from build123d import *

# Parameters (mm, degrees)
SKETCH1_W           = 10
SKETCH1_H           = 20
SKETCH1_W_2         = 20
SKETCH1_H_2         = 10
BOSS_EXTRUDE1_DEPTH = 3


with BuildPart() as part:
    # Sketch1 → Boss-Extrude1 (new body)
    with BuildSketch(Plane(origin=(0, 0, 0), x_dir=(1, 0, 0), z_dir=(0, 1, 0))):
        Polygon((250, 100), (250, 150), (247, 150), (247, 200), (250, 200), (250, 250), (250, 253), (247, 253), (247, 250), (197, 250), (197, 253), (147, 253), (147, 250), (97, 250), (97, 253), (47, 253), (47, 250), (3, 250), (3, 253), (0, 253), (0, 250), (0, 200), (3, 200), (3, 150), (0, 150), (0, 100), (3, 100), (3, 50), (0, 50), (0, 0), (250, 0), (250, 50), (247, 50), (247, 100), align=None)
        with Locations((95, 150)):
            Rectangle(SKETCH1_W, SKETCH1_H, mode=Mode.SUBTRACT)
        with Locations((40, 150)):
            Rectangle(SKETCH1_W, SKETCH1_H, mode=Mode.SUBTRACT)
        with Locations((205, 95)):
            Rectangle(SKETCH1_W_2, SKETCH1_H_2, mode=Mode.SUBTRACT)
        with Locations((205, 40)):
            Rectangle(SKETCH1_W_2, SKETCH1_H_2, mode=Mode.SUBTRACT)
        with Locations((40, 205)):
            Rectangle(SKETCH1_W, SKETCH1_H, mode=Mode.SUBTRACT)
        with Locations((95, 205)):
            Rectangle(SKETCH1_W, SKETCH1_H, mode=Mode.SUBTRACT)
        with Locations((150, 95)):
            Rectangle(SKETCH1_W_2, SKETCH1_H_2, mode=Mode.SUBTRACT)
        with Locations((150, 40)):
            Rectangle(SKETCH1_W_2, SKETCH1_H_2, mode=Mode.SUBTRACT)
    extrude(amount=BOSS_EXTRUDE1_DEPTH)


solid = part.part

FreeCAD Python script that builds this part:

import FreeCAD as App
import Part
import Sketcher

V = App.Vector
Q = App.Units.Quantity

doc = App.newDocument("Part")
params = doc.addObject("Spreadsheet::Sheet", "Params")
for row, (alias, value) in enumerate([
    ("sketch1_width", "3 mm"),
    ("sketch1_width2", "50 mm"),
    ("sketch1_width3", "44 mm"),
    ("sketch1_width4", "20 mm"),
    ("sketch1_width5", "10 mm"),
    ("pad1_length", "3 mm"),
], start=1):
    params.set(f"A{row}", alias)
    params.set(f"B{row}", "=" + value)
    params.setAlias(f"B{row}", alias)

body = doc.addObject("PartDesign::Body", "Body")

sketch1 = doc.addObject("Sketcher::SketchObject", "Sketch")
body.addObject(sketch1)
sketch1.AttachmentSupport = (doc.XZ_Plane, [""])
sketch1.MapMode = "FlatFace"
sketch1.addGeometry([
    Part.LineSegment(V(250, -100, 0), V(250, -150, 0)),
    Part.LineSegment(V(250, -150, 0), V(247, -150, 0)),
    Part.LineSegment(V(247, -150, 0), V(247, -200, 0)),
    Part.LineSegment(V(247, -200, 0), V(250, -200, 0)),
    Part.LineSegment(V(250, -200, 0), V(250, -253, 0)),
    Part.LineSegment(V(250, -253, 0), V(247, -253, 0)),
    Part.LineSegment(V(247, -253, 0), V(247, -250, 0)),
    Part.LineSegment(V(247, -250, 0), V(197, -250, 0)),
    Part.LineSegment(V(197, -250, 0), V(197, -253, 0)),
    Part.LineSegment(V(197, -253, 0), V(147, -253, 0)),
    Part.LineSegment(V(147, -253, 0), V(147, -250, 0)),
    Part.LineSegment(V(147, -250, 0), V(97, -250, 0)),
    Part.LineSegment(V(97, -250, 0), V(97, -253, 0)),
    Part.LineSegment(V(97, -253, 0), V(47, -253, 0)),
    Part.LineSegment(V(47, -253, 0), V(47, -250, 0)),
    Part.LineSegment(V(47, -250, 0), V(3, -250, 0)),
    Part.LineSegment(V(3, -250, 0), V(3, -253, 0)),
    Part.LineSegment(V(3, -253, 0), V(0, -253, 0)),
    Part.LineSegment(V(0, -253, 0), V(0, -200, 0)),
    Part.LineSegment(V(0, -200, 0), V(3, -200, 0)),
    Part.LineSegment(V(3, -200, 0), V(3, -150, 0)),
    Part.LineSegment(V(3, -150, 0), V(0, -150, 0)),
    Part.LineSegment(V(0, -150, 0), V(0, -100, 0)),
    Part.LineSegment(V(0, -100, 0), V(3, -100, 0)),
    Part.LineSegment(V(3, -100, 0), V(3, -50, 0)),
    Part.LineSegment(V(3, -50, 0), V(0, -50, 0)),
    Part.LineSegment(V(0, -50, 0), V(0, 0, 0)),
    Part.LineSegment(V(0, 0, 0), V(250, 0, 0)),
    Part.LineSegment(V(250, 0, 0), V(250, -50, 0)),
    Part.LineSegment(V(250, -50, 0), V(247, -50, 0)),
    Part.LineSegment(V(247, -50, 0), V(247, -100, 0)),
    Part.LineSegment(V(247, -100, 0), V(250, -100, 0)),
    Part.LineSegment(V(160, -35, 0), V(140, -35, 0)),
    Part.LineSegment(V(140, -35, 0), V(140, -45, 0)),
    Part.LineSegment(V(140, -45, 0), V(160, -45, 0)),
    Part.LineSegment(V(160, -45, 0), V(160, -35, 0)),
    Part.LineSegment(V(215, -35, 0), V(195, -35, 0)),
    Part.LineSegment(V(195, -35, 0), V(195, -45, 0)),
    Part.LineSegment(V(195, -45, 0), V(215, -45, 0)),
    Part.LineSegment(V(215, -45, 0), V(215, -35, 0)),
    Part.LineSegment(V(160, -90, 0), V(140, -90, 0)),
    Part.LineSegment(V(140, -90, 0), V(140, -100, 0)),
    Part.LineSegment(V(140, -100, 0), V(160, -100, 0)),
    Part.LineSegment(V(160, -100, 0), V(160, -90, 0)),
    Part.LineSegment(V(215, -90, 0), V(195, -90, 0)),
    Part.LineSegment(V(195, -90, 0), V(195, -100, 0)),
    Part.LineSegment(V(195, -100, 0), V(215, -100, 0)),
    Part.LineSegment(V(215, -100, 0), V(215, -90, 0)),
    Part.LineSegment(V(45, -140, 0), V(35, -140, 0)),
    Part.LineSegment(V(35, -140, 0), V(35, -160, 0)),
    Part.LineSegment(V(35, -160, 0), V(45, -160, 0)),
    Part.LineSegment(V(45, -160, 0), V(45, -140, 0)),
    Part.LineSegment(V(100, -140, 0), V(90, -140, 0)),
    Part.LineSegment(V(90, -140, 0), V(90, -160, 0)),
    Part.LineSegment(V(90, -160, 0), V(100, -160, 0)),
    Part.LineSegment(V(100, -160, 0), V(100, -140, 0)),
    Part.LineSegment(V(45, -195, 0), V(35, -195, 0)),
    Part.LineSegment(V(35, -195, 0), V(35, -215, 0)),
    Part.LineSegment(V(35, -215, 0), V(45, -215, 0)),
    Part.LineSegment(V(45, -215, 0), V(45, -195, 0)),
    Part.LineSegment(V(100, -195, 0), V(90, -195, 0)),
    Part.LineSegment(V(90, -195, 0), V(90, -215, 0)),
    Part.LineSegment(V(90, -215, 0), V(100, -215, 0)),
    Part.LineSegment(V(100, -215, 0), V(100, -195, 0)),
], False)
sketch1.addConstraint([
    Sketcher.Constraint("Coincident", 0, 2, 1, 1),
    Sketcher.Constraint("Coincident", 1, 2, 2, 1),
    Sketcher.Constraint("Coincident", 2, 2, 3, 1),
    Sketcher.Constraint("Coincident", 3, 2, 4, 1),
    Sketcher.Constraint("Coincident", 4, 2, 5, 1),
    Sketcher.Constraint("Coincident", 5, 2, 6, 1),
    Sketcher.Constraint("Coincident", 6, 2, 7, 1),
    Sketcher.Constraint("Coincident", 7, 2, 8, 1),
    Sketcher.Constraint("Coincident", 8, 2, 9, 1),
    Sketcher.Constraint("Coincident", 9, 2, 10, 1),
    Sketcher.Constraint("Coincident", 10, 2, 11, 1),
    Sketcher.Constraint("Coincident", 11, 2, 12, 1),
    Sketcher.Constraint("Coincident", 12, 2, 13, 1),
    Sketcher.Constraint("Coincident", 13, 2, 14, 1),
    Sketcher.Constraint("Coincident", 14, 2, 15, 1),
    Sketcher.Constraint("Coincident", 15, 2, 16, 1),
    Sketcher.Constraint("Coincident", 16, 2, 17, 1),
    Sketcher.Constraint("Coincident", 17, 2, 18, 1),
    Sketcher.Constraint("Coincident", 18, 2, 19, 1),
    Sketcher.Constraint("Coincident", 19, 2, 20, 1),
    Sketcher.Constraint("Coincident", 20, 2, 21, 1),
    Sketcher.Constraint("Coincident", 21, 2, 22, 1),
    Sketcher.Constraint("Coincident", 22, 2, 23, 1),
    Sketcher.Constraint("Coincident", 23, 2, 24, 1),
    Sketcher.Constraint("Coincident", 24, 2, 25, 1),
    Sketcher.Constraint("Coincident", 25, 2, 26, 1),
    Sketcher.Constraint("Coincident", 26, 2, 27, 1),
    Sketcher.Constraint("Coincident", 27, 2, 28, 1),
    Sketcher.Constraint("Coincident", 28, 2, 29, 1),
    Sketcher.Constraint("Coincident", 29, 2, 30, 1),
    Sketcher.Constraint("Coincident", 30, 2, 31, 1),
    Sketcher.Constraint("Coincident", 31, 2, 0, 1),
    Sketcher.Constraint("Coincident", 32, 2, 33, 1),
    Sketcher.Constraint("Coincident", 33, 2, 34, 1),
    Sketcher.Constraint("Coincident", 34, 2, 35, 1),
    Sketcher.Constraint("Coincident", 35, 2, 32, 1),
    Sketcher.Constraint("Coincident", 36, 2, 37, 1),
    Sketcher.Constraint("Coincident", 37, 2, 38, 1),
    Sketcher.Constraint("Coincident", 38, 2, 39, 1),
    Sketcher.Constraint("Coincident", 39, 2, 36, 1),
    Sketcher.Constraint("Coincident", 40, 2, 41, 1),
    Sketcher.Constraint("Coincident", 41, 2, 42, 1),
    Sketcher.Constraint("Coincident", 42, 2, 43, 1),
    Sketcher.Constraint("Coincident", 43, 2, 40, 1),
    Sketcher.Constraint("Coincident", 44, 2, 45, 1),
    Sketcher.Constraint("Coincident", 45, 2, 46, 1),
    Sketcher.Constraint("Coincident", 46, 2, 47, 1),
    Sketcher.Constraint("Coincident", 47, 2, 44, 1),
    Sketcher.Constraint("Coincident", 48, 2, 49, 1),
    Sketcher.Constraint("Coincident", 49, 2, 50, 1),
    Sketcher.Constraint("Coincident", 50, 2, 51, 1),
    Sketcher.Constraint("Coincident", 51, 2, 48, 1),
    Sketcher.Constraint("Coincident", 52, 2, 53, 1),
    Sketcher.Constraint("Coincident", 53, 2, 54, 1),
    Sketcher.Constraint("Coincident", 54, 2, 55, 1),
    Sketcher.Constraint("Coincident", 55, 2, 52, 1),
    Sketcher.Constraint("Coincident", 56, 2, 57, 1),
    Sketcher.Constraint("Coincident", 57, 2, 58, 1),
    Sketcher.Constraint("Coincident", 58, 2, 59, 1),
    Sketcher.Constraint("Coincident", 59, 2, 56, 1),
    Sketcher.Constraint("Coincident", 60, 2, 61, 1),
    Sketcher.Constraint("Coincident", 61, 2, 62, 1),
    Sketcher.Constraint("Coincident", 62, 2, 63, 1),
    Sketcher.Constraint("Coincident", 63, 2, 60, 1),
    Sketcher.Constraint("Vertical", 0),
    Sketcher.Constraint("Horizontal", 1),
    Sketcher.Constraint("Vertical", 2),
    Sketcher.Constraint("Horizontal", 3),
    Sketcher.Constraint("Vertical", 4),
    Sketcher.Constraint("Horizontal", 5),
    Sketcher.Constraint("Vertical", 6),
    Sketcher.Constraint("Horizontal", 7),
    Sketcher.Constraint("Vertical", 8),
    Sketcher.Constraint("Horizontal", 9),
    Sketcher.Constraint("Vertical", 10),
    Sketcher.Constraint("Horizontal", 11),
    Sketcher.Constraint("Vertical", 12),
    Sketcher.Constraint("Horizontal", 13),
    Sketcher.Constraint("Vertical", 14),
    Sketcher.Constraint("Horizontal", 15),
    Sketcher.Constraint("Vertical", 16),
    Sketcher.Constraint("Horizontal", 17),
    Sketcher.Constraint("Vertical", 18),
    Sketcher.Constraint("Horizontal", 19),
    Sketcher.Constraint("Vertical", 20),
    Sketcher.Constraint("Horizontal", 21),
    Sketcher.Constraint("Vertical", 22),
    Sketcher.Constraint("Horizontal", 23),
    Sketcher.Constraint("Vertical", 24),
    Sketcher.Constraint("Horizontal", 25),
    Sketcher.Constraint("Vertical", 26),
    Sketcher.Constraint("Horizontal", 27),
    Sketcher.Constraint("Vertical", 28),
    Sketcher.Constraint("Horizontal", 29),
    Sketcher.Constraint("Vertical", 30),
    Sketcher.Constraint("Horizontal", 31),
    Sketcher.Constraint("Horizontal", 32),
    Sketcher.Constraint("Vertical", 33),
    Sketcher.Constraint("Horizontal", 34),
    Sketcher.Constraint("Vertical", 35),
    Sketcher.Constraint("Horizontal", 36),
    Sketcher.Constraint("Vertical", 37),
    Sketcher.Constraint("Horizontal", 38),
    Sketcher.Constraint("Vertical", 39),
    Sketcher.Constraint("Horizontal", 40),
    Sketcher.Constraint("Vertical", 41),
    Sketcher.Constraint("Horizontal", 42),
    Sketcher.Constraint("Vertical", 43),
    Sketcher.Constraint("Horizontal", 44),
    Sketcher.Constraint("Vertical", 45),
    Sketcher.Constraint("Horizontal", 46),
    Sketcher.Constraint("Vertical", 47),
    Sketcher.Constraint("Horizontal", 48),
    Sketcher.Constraint("Vertical", 49),
    Sketcher.Constraint("Horizontal", 50),
    Sketcher.Constraint("Vertical", 51),
    Sketcher.Constraint("Horizontal", 52),
    Sketcher.Constraint("Vertical", 53),
    Sketcher.Constraint("Horizontal", 54),
    Sketcher.Constraint("Vertical", 55),
    Sketcher.Constraint("Horizontal", 56),
    Sketcher.Constraint("Vertical", 57),
    Sketcher.Constraint("Horizontal", 58),
    Sketcher.Constraint("Vertical", 59),
    Sketcher.Constraint("Horizontal", 60),
    Sketcher.Constraint("Vertical", 61),
    Sketcher.Constraint("Horizontal", 62),
    Sketcher.Constraint("Vertical", 63),
    Sketcher.Constraint("Coincident", 26, 2, -1, 1),
    Sketcher.Constraint("PointOnObject", 17, 2, -2),
    Sketcher.Constraint("PointOnObject", 21, 2, -2),
    Sketcher.Constraint("Horizontal", 5, 2, 8, 2),
    Sketcher.Constraint("Horizontal", 7, 2, 10, 2),
    Sketcher.Constraint("Horizontal", 9, 2, 12, 2),
    Sketcher.Constraint("Horizontal", 11, 2, 14, 2),
    Sketcher.Constraint("Horizontal", 13, 2, 16, 2),
    Sketcher.Constraint("Horizontal", 3, 2, 18, 2),
    Sketcher.Constraint("Horizontal", 1, 2, 20, 2),
    Sketcher.Constraint("Horizontal", 25, 2, 28, 2),
    Sketcher.Constraint("Horizontal", 23, 2, 30, 2),
    Sketcher.Constraint("Horizontal", 35, 2, 36, 2),
    Sketcher.Constraint("Horizontal", 34, 2, 37, 2),
    Sketcher.Constraint("Horizontal", 31, 2, 41, 2),
    Sketcher.Constraint("Horizontal", 43, 2, 44, 2),
    Sketcher.Constraint("Horizontal", 42, 2, 45, 2),
    Sketcher.Constraint("Horizontal", 51, 2, 52, 2),
    Sketcher.Constraint("Horizontal", 50, 2, 53, 2),
    Sketcher.Constraint("Horizontal", 59, 2, 60, 2),
    Sketcher.Constraint("Horizontal", 58, 2, 61, 2),
    Sketcher.Constraint("Vertical", 0, 2, 3, 2),
    Sketcher.Constraint("Vertical", 2, 2, 5, 2),
    Sketcher.Constraint("Vertical", 16, 2, 19, 2),
    Sketcher.Constraint("Vertical", 20, 2, 23, 2),
    Sketcher.Constraint("Vertical", 4, 2, 27, 2),
    Sketcher.Constraint("Vertical", 6, 2, 29, 2),
    Sketcher.Constraint("Vertical", 33, 2, 40, 2),
    Sketcher.Constraint("Vertical", 35, 2, 42, 2),
    Sketcher.Constraint("Vertical", 37, 2, 44, 2),
    Sketcher.Constraint("Vertical", 39, 2, 46, 2),
    Sketcher.Constraint("Vertical", 49, 2, 56, 2),
    Sketcher.Constraint("Vertical", 51, 2, 58, 2),
    Sketcher.Constraint("Vertical", 53, 2, 60, 2),
    Sketcher.Constraint("Vertical", 55, 2, 62, 2),
    Sketcher.Constraint("Equal", 7, 9),
    Sketcher.Constraint("Equal", 9, 11),
    Sketcher.Constraint("Equal", 11, 13),
    Sketcher.Constraint("Equal", 5, 17),
    Sketcher.Constraint("Equal", 34, 36),
    Sketcher.Constraint("Equal", 50, 52),
    Sketcher.Constraint("Equal", 13, 0),
    Sketcher.Constraint("Equal", 0, 2),
    Sketcher.Constraint("Equal", 31, 6),
    Sketcher.Constraint("Equal", 22, 24),
    Sketcher.Constraint("Equal", 24, 26),
    Sketcher.Constraint("Equal", 62, 33),
    Sketcher.Constraint("Equal", 39, 41),
    Sketcher.Constraint("Equal", 46, 49),
    Sketcher.Constraint("Equal", 55, 57),
    Sketcher.Constraint("DistanceX", 1, 2, 1, 1, Q("3 mm")),
    Sketcher.Constraint("DistanceX", 7, 2, 7, 1, Q("50 mm")),
    Sketcher.Constraint("DistanceX", 15, 2, 15, 1, Q("44 mm")),
    Sketcher.Constraint("DistanceX", 32, 2, 32, 1, Q("20 mm")),
    Sketcher.Constraint("DistanceX", 48, 2, 48, 1, Q("10 mm")),
    Sketcher.Constraint("DistanceY", 4, 2, 4, 1, Q("53 mm")),
    Sketcher.Constraint("DistanceX", -1, 1, 32, 2, Q("140 mm")),
    Sketcher.Constraint("DistanceY", 32, 2, -1, 1, Q("35 mm")),
    Sketcher.Constraint("DistanceX", -1, 1, 36, 2, Q("195 mm")),
    Sketcher.Constraint("DistanceX", -1, 1, 48, 2, Q("35 mm")),
    Sketcher.Constraint("DistanceY", 48, 2, -1, 1, Q("140 mm")),
    Sketcher.Constraint("DistanceX", -1, 1, 52, 2, Q("90 mm")),
    Sketcher.Constraint("DistanceY", 56, 2, -1, 1, Q("195 mm")),
])
sketch1.setExpression("Constraints[178]", "Params.sketch1_width")
sketch1.setExpression("Constraints[179]", "Params.sketch1_width2")
sketch1.setExpression("Constraints[180]", "Params.sketch1_width3")
sketch1.setExpression("Constraints[181]", "Params.sketch1_width4")
sketch1.setExpression("Constraints[182]", "Params.sketch1_width5")
pad1 = doc.addObject("PartDesign::Pad", "Pad")
body.addObject(pad1)
pad1.Profile = sketch1
pad1.setExpression("Length", "Params.pad1_length")
pad1.Reversed = True

doc.recompute()
